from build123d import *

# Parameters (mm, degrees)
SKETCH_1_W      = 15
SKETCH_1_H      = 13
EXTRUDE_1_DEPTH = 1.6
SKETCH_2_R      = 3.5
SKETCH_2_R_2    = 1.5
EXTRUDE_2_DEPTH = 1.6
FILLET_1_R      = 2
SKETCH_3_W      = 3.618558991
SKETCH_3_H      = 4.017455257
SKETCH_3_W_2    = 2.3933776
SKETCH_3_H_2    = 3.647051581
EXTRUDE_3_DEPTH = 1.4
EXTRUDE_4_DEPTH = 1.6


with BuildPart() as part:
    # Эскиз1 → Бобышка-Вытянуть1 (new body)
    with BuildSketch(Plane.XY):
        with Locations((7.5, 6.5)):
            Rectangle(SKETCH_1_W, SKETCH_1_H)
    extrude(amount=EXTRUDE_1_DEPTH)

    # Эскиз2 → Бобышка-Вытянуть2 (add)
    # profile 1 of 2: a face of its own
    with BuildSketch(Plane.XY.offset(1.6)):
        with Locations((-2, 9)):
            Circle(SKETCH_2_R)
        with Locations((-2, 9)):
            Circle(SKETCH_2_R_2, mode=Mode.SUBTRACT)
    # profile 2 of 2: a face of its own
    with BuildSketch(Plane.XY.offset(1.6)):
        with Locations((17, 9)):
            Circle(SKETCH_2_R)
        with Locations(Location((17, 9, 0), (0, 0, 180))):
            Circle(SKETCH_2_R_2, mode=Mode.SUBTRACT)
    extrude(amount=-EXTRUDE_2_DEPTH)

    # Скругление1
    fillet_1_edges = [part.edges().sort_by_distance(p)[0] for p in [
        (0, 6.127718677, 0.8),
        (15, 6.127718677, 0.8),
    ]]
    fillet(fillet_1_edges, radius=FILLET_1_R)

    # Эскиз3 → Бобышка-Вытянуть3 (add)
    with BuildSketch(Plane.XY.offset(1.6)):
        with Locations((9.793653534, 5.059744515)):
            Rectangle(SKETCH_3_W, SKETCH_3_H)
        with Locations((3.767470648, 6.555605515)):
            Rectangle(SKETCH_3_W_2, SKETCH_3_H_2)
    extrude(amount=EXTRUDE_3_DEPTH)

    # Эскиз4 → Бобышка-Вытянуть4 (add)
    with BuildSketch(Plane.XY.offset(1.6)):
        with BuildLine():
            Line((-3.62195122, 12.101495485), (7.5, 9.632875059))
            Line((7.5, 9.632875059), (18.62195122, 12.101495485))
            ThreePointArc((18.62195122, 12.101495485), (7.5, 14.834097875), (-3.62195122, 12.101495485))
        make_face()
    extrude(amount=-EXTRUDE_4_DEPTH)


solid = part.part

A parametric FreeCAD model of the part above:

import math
import FreeCAD as App
import Part
import Sketcher

V = App.Vector


def edges_at(feature, points):
    """Names of the edges that pass closest to the given points."""
    edges = feature.Shape.Edges
    near = lambda p: min(range(len(edges)), key=lambda i: edges[i].distToShape(Part.Vertex(*p))[0])
    return sorted({f"Edge{near(p) + 1}" for p in points})


def add_polygon(sketch, points):
    """Adds a closed chain of lines whose ends are joined by coincident constraints."""
    first, n = sketch.GeometryCount, len(points)
    for a, b in zip(points, points[1:] + points[:1]):
        sketch.addGeometry(Part.LineSegment(App.Vector(*a, 0), App.Vector(*b, 0)), False)
    for i in range(n):
        sketch.addConstraint(Sketcher.Constraint("Coincident", first + i, 2, first + (i + 1) % n, 1))

doc = App.newDocument("Part")
body = doc.addObject("PartDesign::Body", "Body")

sketch1 = doc.addObject("Sketcher::SketchObject", "Sketch")
body.addObject(sketch1)
sketch1.AttachmentSupport = (doc.XY_Plane, [""])
sketch1.MapMode = "FlatFace"
add_polygon(sketch1, [(0, 13), (0, 0), (15, 0), (15, 13)])
sketch1.addConstraint([
    Sketcher.Constraint("Vertical", 0),
    Sketcher.Constraint("Horizontal", 1),
    Sketcher.Constraint("Vertical", 2),
    Sketcher.Constraint("Horizontal", 3),
    Sketcher.Constraint("Coincident", 0, 2, -1, 1),
    Sketcher.Constraint("DistanceX", 1, 1, 1, 2, 15.0),
    Sketcher.Constraint("DistanceY", 0, 2, 0, 1, 13.0),
])
pad1 = doc.addObject("PartDesign::Pad", "Pad")
body.addObject(pad1)
pad1.Profile = sketch1
pad1.Length = 1.6

sketch2 = doc.addObject("Sketcher::SketchObject", "Sketch001")
body.addObject(sketch2)
sketch2.AttachmentSupport = (doc.XY_Plane, [""])
sketch2.MapMode = "FlatFace"
sketch2.AttachmentOffset = App.Placement(V(0, 0, 1.6), App.Rotation())
sketch2.addGeometry([
    Part.Circle(V(-2, 9, 0), V(0, 0, 1), 3.5),
    Part.Circle(V(-2, 9, 0), V(0, 0, 1), 1.5),
    Part.Circle(V(17, 9, 0), V(0, 0, 1), 3.5),
    Part.Circle(V(17, 9, 0), V(0, 0, 1), 1.5),
], False)
sketch2.addConstraint([
    Sketcher.Constraint("Coincident", 1, 3, 0, 3),
    Sketcher.Constraint("Coincident", 3, 3, 2, 3),
    Sketcher.Constraint("Equal", 0, 2),
    Sketcher.Constraint("Equal", 1, 3),
    Sketcher.Constraint("Horizontal", 1, 3, 2, 3),
    Sketcher.Constraint("Diameter", 0, 7.0),
    Sketcher.Constraint("Diameter", 1, 3.0),
    Sketcher.Constraint("DistanceX", 0, 3, -1, 1, 2.0),
    Sketcher.Constraint("DistanceY", -1, 1, 0, 3, 9.0),
    Sketcher.Constraint("DistanceX", -1, 1, 2, 3, 17.0),
])
pad2 = doc.addObject("PartDesign::Pad", "Pad001")
body.addObject(pad2)
pad2.Profile = sketch2
pad2.Length = 1.6
pad2.Reversed = True
doc.recompute()

fillet = doc.addObject("PartDesign::Fillet", "Fillet")
body.addObject(fillet)
fillet.Base = (pad2, edges_at(pad2, [(0, 6.128, 0.8), (15, 6.128, 0.8)]))
fillet.Radius = 2

sketch3 = doc.addObject("Sketcher::SketchObject", "Sketch002")
body.addObject(sketch3)
sketch3.AttachmentSupport = (doc.XY_Plane, [""])
sketch3.MapMode = "FlatFace"
sketch3.AttachmentOffset = App.Placement(V(0, 0, 1.6), App.Rotation())
add_polygon(sketch3, [(8, 7.1), (8, 3.1), (11.6, 3.1), (11.6, 7.1)])
add_polygon(sketch3, [(2.6, 8.4), (2.6, 4.7), (5, 4.7), (5, 8.4)])
sketch3.addConstraint([
    Sketcher.Constraint("Vertical", 0),
    Sketcher.Constraint("Horizontal", 1),
    Sketcher.Constraint("Vertical", 2),
    Sketcher.Constraint("Horizontal", 3),
    Sketcher.Constraint("Vertical", 4),
    Sketcher.Constraint("Horizontal", 5),
    Sketcher.Constraint("Vertical", 6),
    Sketcher.Constraint("Horizontal", 7),
    Sketcher.Constraint("DistanceX", 1, 1, 1, 2, 3.618559),
    Sketcher.Constraint("DistanceY", 4, 2, 4, 1, 3.647052),
    Sketcher.Constraint("DistanceX", 5, 1, 5, 2, 2.393378),
    Sketcher.Constraint("DistanceY", 0, 2, 0, 1, 4.017455),
    Sketcher.Constraint("DistanceX", -1, 1, 4, 2, 2.570782),
    Sketcher.Constraint("DistanceY", -1, 1, 4, 2, 4.73208),
    Sketcher.Constraint("DistanceX", 4, 2, 1, 2, 9.032151),
    Sketcher.Constraint("DistanceY", 3, 2, 6, 2, 1.310659),
])
pad3 = doc.addObject("PartDesign::Pad", "Pad002")
body.addObject(pad3)
pad3.Profile = sketch3
pad3.Length = 1.4

sketch4 = doc.addObject("Sketcher::SketchObject", "Sketch003")
body.addObject(sketch4)
sketch4.AttachmentSupport = (doc.XY_Plane, [""])
sketch4.MapMode = "FlatFace"
sketch4.AttachmentOffset = App.Placement(V(0, 0, 1.6), App.Rotation())
sketch4.addGeometry([
    Part.LineSegment(V(-4, 12, 0), V(8, 10, 0)),
    Part.LineSegment(V(8, 10, 0), V(19, 12, 0)),
    Part.ArcOfCircle(Part.Circle(V(8, -9, 0), V(0, 0, 1), 24), math.radians(62), math.radians(118)),
], False)
sketch4.addConstraint([
    Sketcher.Constraint("Coincident", 0, 2, 1, 1),
    Sketcher.Constraint("Coincident", 1, 2, 2, 1),
    Sketcher.Constraint("Coincident", 2, 2, 0, 1),
    Sketcher.Constraint("Horizontal", 1, 2, 2, 2),
    Sketcher.Constraint("Vertical", 2, 3, 0, 2),
    Sketcher.Constraint("Radius", 2, 24.0),
    Sketcher.Constraint("DistanceX", -1, 1, 2, 3, 7.5),
    Sketcher.Constraint("DistanceX", -1, 1, 1, 2, 18.621951),
    Sketcher.Constraint("DistanceY", 0, 2, 1, 2, 2.46862),
    Sketcher.Constraint("DistanceY", 2, 3, -1, 1, 9.165902),
])
pad4 = doc.addObject("PartDesign::Pad", "Pad003")
body.addObject(pad4)
pad4.Profile = sketch4
pad4.Length = 1.6
pad4.Reversed = True

doc.recompute()
